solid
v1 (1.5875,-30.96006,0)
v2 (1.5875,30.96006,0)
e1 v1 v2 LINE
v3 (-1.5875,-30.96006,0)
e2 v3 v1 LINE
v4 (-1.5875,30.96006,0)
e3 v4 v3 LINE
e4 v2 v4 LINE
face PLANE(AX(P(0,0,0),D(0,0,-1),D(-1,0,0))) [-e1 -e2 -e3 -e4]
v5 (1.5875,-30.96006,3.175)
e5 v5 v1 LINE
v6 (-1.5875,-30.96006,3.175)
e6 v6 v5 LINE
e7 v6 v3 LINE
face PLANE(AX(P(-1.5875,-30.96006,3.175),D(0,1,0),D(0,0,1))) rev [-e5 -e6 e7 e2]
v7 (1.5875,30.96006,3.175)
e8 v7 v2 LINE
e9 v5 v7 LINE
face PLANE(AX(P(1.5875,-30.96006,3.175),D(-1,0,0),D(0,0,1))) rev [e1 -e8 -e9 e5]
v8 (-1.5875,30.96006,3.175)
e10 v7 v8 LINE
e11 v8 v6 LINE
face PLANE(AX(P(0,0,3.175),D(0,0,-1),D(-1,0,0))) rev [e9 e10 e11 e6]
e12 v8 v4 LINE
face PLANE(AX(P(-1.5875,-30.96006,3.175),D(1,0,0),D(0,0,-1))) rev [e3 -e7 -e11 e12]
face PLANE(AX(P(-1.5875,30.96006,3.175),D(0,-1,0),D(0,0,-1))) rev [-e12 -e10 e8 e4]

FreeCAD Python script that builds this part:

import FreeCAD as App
import Part
import Sketcher
from FreeCAD import Vector
Q = App.Units.Quantity

doc = App.newDocument("Part")
body = doc.addObject("PartDesign::Body", "Body")

# Sketch on XY plane
sketch1 = body.newObject("Sketcher::SketchObject", "Sketch")
sketch1.AttachmentSupport = (doc.getObject("XY_Plane"), [""])
sketch1.MapMode = "FlatFace"
sketch1.addGeometry([
    Part.LineSegment(Vector(-1.6, 31, 0), Vector(-1.6, -31, 0)),
    Part.LineSegment(Vector(-1.6, -31, 0), Vector(1.6, -31, 0)),
    Part.LineSegment(Vector(1.6, -31, 0), Vector(1.6, 31, 0)),
    Part.LineSegment(Vector(1.6, 31, 0), Vector(-1.6, 31, 0)),
], False)
sketch1.addConstraint([
    Sketcher.Constraint("Coincident", 0, 2, 1, 1),
    Sketcher.Constraint("Coincident", 1, 2, 2, 1),
    Sketcher.Constraint("Coincident", 2, 2, 3, 1),
    Sketcher.Constraint("Coincident", 3, 2, 0, 1),
    Sketcher.Constraint("Vertical", 0),
    Sketcher.Constraint("Horizontal", 1),
    Sketcher.Constraint("Vertical", 2),
    Sketcher.Constraint("Horizontal", 3),
    Sketcher.Constraint("Symmetric", 0, 2, 2, 2, -1, 1),
    Sketcher.Constraint("DistanceX", 1, 1, 1, 2, Q("0.125 in")),
    Sketcher.Constraint("DistanceY", 0, 2, 0, 1, Q("2.4378 in")),
])
pad1 = body.newObject("PartDesign::Pad", "Pad")
pad1.Profile = sketch1
pad1.Length = Q("0.125 in")

doc.recompute()
